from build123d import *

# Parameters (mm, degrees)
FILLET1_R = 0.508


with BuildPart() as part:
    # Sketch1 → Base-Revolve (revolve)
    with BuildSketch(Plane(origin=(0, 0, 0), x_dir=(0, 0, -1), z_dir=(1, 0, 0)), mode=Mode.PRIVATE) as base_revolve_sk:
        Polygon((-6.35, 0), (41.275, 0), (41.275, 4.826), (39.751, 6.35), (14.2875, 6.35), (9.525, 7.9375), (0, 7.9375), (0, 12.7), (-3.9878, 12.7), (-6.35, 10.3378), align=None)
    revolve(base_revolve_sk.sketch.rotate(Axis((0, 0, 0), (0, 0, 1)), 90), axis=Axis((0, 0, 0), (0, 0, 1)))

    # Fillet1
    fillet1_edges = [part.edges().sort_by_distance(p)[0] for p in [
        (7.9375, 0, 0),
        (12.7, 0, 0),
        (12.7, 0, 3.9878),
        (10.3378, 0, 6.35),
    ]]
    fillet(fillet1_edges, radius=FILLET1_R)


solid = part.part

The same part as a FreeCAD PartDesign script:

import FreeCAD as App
import Part
import Sketcher

V = App.Vector
Q = App.Units.Quantity


def edges_at(feature, points):
    """Names of the edges that pass closest to the given points."""
    edges = feature.Shape.Edges
    near = lambda p: min(range(len(edges)), key=lambda i: edges[i].distToShape(Part.Vertex(*p))[0])
    return sorted({f"Edge{near(p) + 1}" for p in points})


def add_polygon(sketch, points):
    """Adds a closed chain of lines whose ends are joined by coincident constraints."""
    first, n = sketch.GeometryCount, len(points)
    for a, b in zip(points, points[1:] + points[:1]):
        sketch.addGeometry(Part.LineSegment(App.Vector(*a, 0), App.Vector(*b, 0)), False)
    for i in range(n):
        sketch.addConstraint(Sketcher.Constraint("Coincident", first + i, 2, first + (i + 1) % n, 1))

doc = App.newDocument("Part")
body = doc.addObject("PartDesign::Body", "Body")

# Sketch on YZ plane
sketch1 = body.newObject("Sketcher::SketchObject", "Sketch")
sketch1.AttachmentSupport = (doc.getObject("YZ_Plane"), [""])
sketch1.MapMode = "FlatFace"
add_polygon(sketch1, [(0, 6.35), (0, -41.275), (4.826, -41.275), (6.35, -39.751), (6.35, -14.2875), (7.9375, -9.525), (7.9375, 0), (12.7, 0), (12.7, 3.9878), (10.3378, 6.35)])  # lines 0-9
sketch1.addConstraint([
    Sketcher.Constraint("Vertical", 0),
    Sketcher.Constraint("Horizontal", 1),
    Sketcher.Constraint("Vertical", 3),
    Sketcher.Constraint("Vertical", 5),
    Sketcher.Constraint("Horizontal", 6),
    Sketcher.Constraint("Vertical", 7),
    Sketcher.Constraint("Horizontal", 9),
    Sketcher.Constraint("PointOnObject", 0, 2, -2),
    Sketcher.Constraint("PointOnObject", 5, 2, -1),
    Sketcher.Constraint("Perpendicular", 2, 8),
    Sketcher.Constraint("Angle", 2, Q("45 deg")),
    Sketcher.Constraint("DistanceX", 1, 1, 1, 2, Q("0.19 in")),
    Sketcher.Constraint("DistanceX", -1, 1, 6, 2, Q("0.5 in")),
    Sketcher.Constraint("DistanceX", 6, 1, 6, 2, Q("0.1875 in")),
    Sketcher.Constraint("DistanceX", 9, 2, 9, 1, Q("0.407 in")),
    Sketcher.Constraint("DistanceY", 0, 2, 0, 1, Q("1.875 in")),
    Sketcher.Constraint("DistanceY", 5, 1, 5, 2, Q("0.375 in")),
    Sketcher.Constraint("DistanceY", 7, 1, 7, 2, Q("0.157 in")),
    Sketcher.Constraint("DistanceX", -1, 1, 2, 2, Q("0.25 in")),
    Sketcher.Constraint("DistanceY", 3, 1, 3, 2, Q("1.0025 in")),
])
revolution = body.newObject("PartDesign::Revolution", "Revolution")
revolution.Profile = sketch1
revolution.ReferenceAxis = (sketch1, ["V_Axis"])
revolution.Angle = 360
doc.recompute()

fillet = body.newObject("PartDesign::Fillet", "Fillet")
fillet.Base = (revolution, edges_at(revolution, [
    (7.938, 0, 0),
    (12.7, 0, 0),
    (12.7, 0, 3.988),
    (10.338, 0, 6.35),
]))
fillet.Radius = Q("0.02 in")

doc.recompute()
